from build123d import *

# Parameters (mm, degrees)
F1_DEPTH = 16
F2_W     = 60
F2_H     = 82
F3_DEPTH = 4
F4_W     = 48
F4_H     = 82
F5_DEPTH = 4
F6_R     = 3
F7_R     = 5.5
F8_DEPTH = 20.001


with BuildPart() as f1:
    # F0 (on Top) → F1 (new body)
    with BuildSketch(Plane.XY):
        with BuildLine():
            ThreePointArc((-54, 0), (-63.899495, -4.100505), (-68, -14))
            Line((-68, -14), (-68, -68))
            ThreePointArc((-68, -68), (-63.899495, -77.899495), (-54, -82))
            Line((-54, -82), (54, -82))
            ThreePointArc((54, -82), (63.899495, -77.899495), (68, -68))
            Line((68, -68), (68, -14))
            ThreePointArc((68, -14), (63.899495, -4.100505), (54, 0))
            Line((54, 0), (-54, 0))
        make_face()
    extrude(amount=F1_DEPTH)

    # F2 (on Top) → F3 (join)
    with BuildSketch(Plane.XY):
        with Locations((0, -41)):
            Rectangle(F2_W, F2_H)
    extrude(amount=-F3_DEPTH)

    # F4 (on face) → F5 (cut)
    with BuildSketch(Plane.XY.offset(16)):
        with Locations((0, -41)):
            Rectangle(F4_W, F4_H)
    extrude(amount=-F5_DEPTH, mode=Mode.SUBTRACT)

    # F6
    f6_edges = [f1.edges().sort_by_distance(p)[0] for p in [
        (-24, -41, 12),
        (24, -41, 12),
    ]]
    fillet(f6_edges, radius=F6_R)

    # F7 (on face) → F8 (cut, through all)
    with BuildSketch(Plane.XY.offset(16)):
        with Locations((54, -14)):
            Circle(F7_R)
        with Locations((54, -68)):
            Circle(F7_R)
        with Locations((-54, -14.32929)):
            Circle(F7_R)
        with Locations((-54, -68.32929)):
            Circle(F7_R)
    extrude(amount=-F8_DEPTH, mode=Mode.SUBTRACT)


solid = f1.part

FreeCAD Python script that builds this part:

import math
import FreeCAD as App
import Part
import Sketcher
from FreeCAD import Vector
Q = App.Units.Quantity


def edges_at(feature, points):
    """Names of the edges that pass closest to the given points."""
    edges = feature.Shape.Edges
    near = lambda p: min(range(len(edges)), key=lambda i: edges[i].distToShape(Part.Vertex(*p))[0])
    return sorted({f"Edge{near(p) + 1}" for p in points})


def add_polygon(sketch, points):
    """Adds a closed chain of lines whose ends are joined by coincident constraints."""
    first, n = sketch.GeometryCount, len(points)
    for a, b in zip(points, points[1:] + points[:1]):
        sketch.addGeometry(Part.LineSegment(App.Vector(*a, 0), App.Vector(*b, 0)), False)
    for i in range(n):
        sketch.addConstraint(Sketcher.Constraint("Coincident", first + i, 2, first + (i + 1) % n, 1))

doc = App.newDocument("Part")
body = doc.addObject("PartDesign::Body", "Body")

sketch1 = doc.addObject("Sketcher::SketchObject", "Sketch")
body.addObject(sketch1)
sketch1.AttachmentSupport = (doc.XY_Plane, [""])
sketch1.MapMode = "FlatFace"
sketch1.addGeometry(Part.ArcOfCircle(Part.Circle(Vector(-54, -14, 0), Vector(0, 0, 1), 14), math.radians(90), math.radians(180)), False)
sketch1.addGeometry(Part.LineSegment(Vector(-68, -14, 0), Vector(-68, -68, 0)), False)
sketch1.addGeometry(Part.ArcOfCircle(Part.Circle(Vector(-54, -68, 0), Vector(0, 0, 1), 14), math.radians(180), math.radians(270)), False)
sketch1.addGeometry(Part.LineSegment(Vector(-54, -82, 0), Vector(54, -82, 0)), False)
sketch1.addGeometry(Part.ArcOfCircle(Part.Circle(Vector(54, -68, 0), Vector(0, 0, 1), 14), math.radians(-90), math.radians(0)), False)
sketch1.addGeometry(Part.LineSegment(Vector(68, -68, 0), Vector(68, -14, 0)), False)
sketch1.addGeometry(Part.ArcOfCircle(Part.Circle(Vector(54, -14, 0), Vector(0, 0, 1), 14), math.radians(0), math.radians(90)), False)
sketch1.addGeometry(Part.LineSegment(Vector(54, 0, 0), Vector(-54, 0, 0)), False)
sketch1.addConstraint(Sketcher.Constraint("Tangent", 0, 2, 1, 1))
sketch1.addConstraint(Sketcher.Constraint("Tangent", 1, 2, 2, 1))
sketch1.addConstraint(Sketcher.Constraint("Tangent", 2, 2, 3, 1))
sketch1.addConstraint(Sketcher.Constraint("Tangent", 3, 2, 4, 1))
sketch1.addConstraint(Sketcher.Constraint("Tangent", 4, 2, 5, 1))
sketch1.addConstraint(Sketcher.Constraint("Tangent", 5, 2, 6, 1))
sketch1.addConstraint(Sketcher.Constraint("Tangent", 6, 2, 7, 1))
sketch1.addConstraint(Sketcher.Constraint("Tangent", 7, 2, 0, 1))
sketch1.addConstraint(Sketcher.Constraint("Vertical", 1))
sketch1.addConstraint(Sketcher.Constraint("Horizontal", 3))
sketch1.addConstraint(Sketcher.Constraint("Vertical", 5))
sketch1.addConstraint(Sketcher.Constraint("Horizontal", 7))
sketch1.addConstraint(Sketcher.Constraint("Equal", 0, 2))
sketch1.addConstraint(Sketcher.Constraint("Equal", 2, 4))
sketch1.addConstraint(Sketcher.Constraint("Equal", 4, 6))
sketch1.addConstraint(Sketcher.Constraint("Symmetric", 6, 2, 7, 2, -1, 1))
sketch1.addConstraint(Sketcher.Constraint("Radius", 0, Q("14 mm")))
sketch1.addConstraint(Sketcher.Constraint("DistanceX", 3, 1, 3, 2, Q("108 mm")))
sketch1.addConstraint(Sketcher.Constraint("DistanceY", 1, 2, 1, 1, Q("54 mm")))
pad1 = doc.addObject("PartDesign::Pad", "Pad")
body.addObject(pad1)
pad1.Profile = sketch1
pad1.Length = 16

sketch2 = doc.addObject("Sketcher::SketchObject", "Sketch001")
body.addObject(sketch2)
sketch2.AttachmentSupport = (doc.XY_Plane, [""])
sketch2.MapMode = "FlatFace"
add_polygon(sketch2, [(-30, 0), (-30, -82), (30, -82), (30, 0)])
sketch2.addConstraint(Sketcher.Constraint("Vertical", 0))
sketch2.addConstraint(Sketcher.Constraint("Horizontal", 1))
sketch2.addConstraint(Sketcher.Constraint("Vertical", 2))
sketch2.addConstraint(Sketcher.Constraint("Horizontal", 3))
sketch2.addConstraint(Sketcher.Constraint("Symmetric", 2, 2, 3, 2, -1, 1))
sketch2.addConstraint(Sketcher.Constraint("DistanceX", 1, 1, 1, 2, Q("60 mm")))
sketch2.addConstraint(Sketcher.Constraint("DistanceY", 0, 2, 0, 1, Q("82 mm")))
pad2 = doc.addObject("PartDesign::Pad", "Pad001")
body.addObject(pad2)
pad2.Profile = sketch2
pad2.Length = 4
pad2.Reversed = True

sketch3 = doc.addObject("Sketcher::SketchObject", "Sketch002")
body.addObject(sketch3)
sketch3.AttachmentSupport = (doc.XY_Plane, [""])
sketch3.MapMode = "FlatFace"
sketch3.AttachmentOffset = App.Placement(Vector(0, 0, 16), App.Rotation())
add_polygon(sketch3, [(-24, 0), (-24, -82), (24, -82), (24, 0)])
sketch3.addConstraint(Sketcher.Constraint("Vertical", 0))
sketch3.addConstraint(Sketcher.Constraint("Horizontal", 1))
sketch3.addConstraint(Sketcher.Constraint("Vertical", 2))
sketch3.addConstraint(Sketcher.Constraint("Horizontal", 3))
sketch3.addConstraint(Sketcher.Constraint("Symmetric", 2, 2, 3, 2, -1, 1))
sketch3.addConstraint(Sketcher.Constraint("DistanceX", 1, 1, 1, 2, Q("48 mm")))
sketch3.addConstraint(Sketcher.Constraint("DistanceY", 0, 2, 0, 1, Q("82 mm")))
pocket1 = doc.addObject("PartDesign::Pocket", "Pocket")
body.addObject(pocket1)
pocket1.Profile = sketch3
pocket1.Length = 4
doc.recompute()

fillet = doc.addObject("PartDesign::Fillet", "Fillet")
body.addObject(fillet)
fillet.Base = (pocket1, edges_at(pocket1, [(-24, -41, 12), (24, -41, 12)]))
fillet.Radius = 3

sketch4 = doc.addObject("Sketcher::SketchObject", "Sketch003")
body.addObject(sketch4)
sketch4.AttachmentSupport = (doc.XY_Plane, [""])
sketch4.MapMode = "FlatFace"
sketch4.AttachmentOffset = App.Placement(Vector(0, 0, 16), App.Rotation())
sketch4.addGeometry(Part.Circle(Vector(54, -14, 0), Vector(0, 0, 1), 6), False)
sketch4.addGeometry(Part.Circle(Vector(54, -68, 0), Vector(0, 0, 1), 6), False)
sketch4.addGeometry(Part.Circle(Vector(-54, -14, 0), Vector(0, 0, 1), 6), False)
sketch4.addGeometry(Part.Circle(Vector(-54, -68, 0), Vector(0, 0, 1), 6), False)
sketch4.addConstraint(Sketcher.Constraint("Equal", 0, 1))
sketch4.addConstraint(Sketcher.Constraint("Equal", 1, 2))
sketch4.addConstraint(Sketcher.Constraint("Equal", 2, 3))
sketch4.addConstraint(Sketcher.Constraint("Vertical", 0, 3, 1, 3))
sketch4.addConstraint(Sketcher.Constraint("Vertical", 2, 3, 3, 3))
sketch4.addConstraint(Sketcher.Constraint("Diameter", 0, Q("11 mm")))
sketch4.addConstraint(Sketcher.Constraint("DistanceX", -1, 1, 0, 3, Q("54 mm")))
sketch4.addConstraint(Sketcher.Constraint("DistanceY", 0, 3, -1, 1, Q("14 mm")))
sketch4.addConstraint(Sketcher.Constraint("DistanceY", 1, 3, -1, 1, Q("68 mm")))
sketch4.addConstraint(Sketcher.Constraint("DistanceX", 2, 3, -1, 1, Q("54 mm")))
sketch4.addConstraint(Sketcher.Constraint("DistanceY", 3, 3, 2, 3, Q("54 mm")))
sketch4.addConstraint(Sketcher.Constraint("DistanceY", 2, 3, -1, 1, Q("14.32929 mm")))
pocket2 = doc.addObject("PartDesign::Pocket", "Pocket001")
body.addObject(pocket2)
pocket2.Profile = sketch4
pocket2.Type = "ThroughAll"

doc.recompute()
